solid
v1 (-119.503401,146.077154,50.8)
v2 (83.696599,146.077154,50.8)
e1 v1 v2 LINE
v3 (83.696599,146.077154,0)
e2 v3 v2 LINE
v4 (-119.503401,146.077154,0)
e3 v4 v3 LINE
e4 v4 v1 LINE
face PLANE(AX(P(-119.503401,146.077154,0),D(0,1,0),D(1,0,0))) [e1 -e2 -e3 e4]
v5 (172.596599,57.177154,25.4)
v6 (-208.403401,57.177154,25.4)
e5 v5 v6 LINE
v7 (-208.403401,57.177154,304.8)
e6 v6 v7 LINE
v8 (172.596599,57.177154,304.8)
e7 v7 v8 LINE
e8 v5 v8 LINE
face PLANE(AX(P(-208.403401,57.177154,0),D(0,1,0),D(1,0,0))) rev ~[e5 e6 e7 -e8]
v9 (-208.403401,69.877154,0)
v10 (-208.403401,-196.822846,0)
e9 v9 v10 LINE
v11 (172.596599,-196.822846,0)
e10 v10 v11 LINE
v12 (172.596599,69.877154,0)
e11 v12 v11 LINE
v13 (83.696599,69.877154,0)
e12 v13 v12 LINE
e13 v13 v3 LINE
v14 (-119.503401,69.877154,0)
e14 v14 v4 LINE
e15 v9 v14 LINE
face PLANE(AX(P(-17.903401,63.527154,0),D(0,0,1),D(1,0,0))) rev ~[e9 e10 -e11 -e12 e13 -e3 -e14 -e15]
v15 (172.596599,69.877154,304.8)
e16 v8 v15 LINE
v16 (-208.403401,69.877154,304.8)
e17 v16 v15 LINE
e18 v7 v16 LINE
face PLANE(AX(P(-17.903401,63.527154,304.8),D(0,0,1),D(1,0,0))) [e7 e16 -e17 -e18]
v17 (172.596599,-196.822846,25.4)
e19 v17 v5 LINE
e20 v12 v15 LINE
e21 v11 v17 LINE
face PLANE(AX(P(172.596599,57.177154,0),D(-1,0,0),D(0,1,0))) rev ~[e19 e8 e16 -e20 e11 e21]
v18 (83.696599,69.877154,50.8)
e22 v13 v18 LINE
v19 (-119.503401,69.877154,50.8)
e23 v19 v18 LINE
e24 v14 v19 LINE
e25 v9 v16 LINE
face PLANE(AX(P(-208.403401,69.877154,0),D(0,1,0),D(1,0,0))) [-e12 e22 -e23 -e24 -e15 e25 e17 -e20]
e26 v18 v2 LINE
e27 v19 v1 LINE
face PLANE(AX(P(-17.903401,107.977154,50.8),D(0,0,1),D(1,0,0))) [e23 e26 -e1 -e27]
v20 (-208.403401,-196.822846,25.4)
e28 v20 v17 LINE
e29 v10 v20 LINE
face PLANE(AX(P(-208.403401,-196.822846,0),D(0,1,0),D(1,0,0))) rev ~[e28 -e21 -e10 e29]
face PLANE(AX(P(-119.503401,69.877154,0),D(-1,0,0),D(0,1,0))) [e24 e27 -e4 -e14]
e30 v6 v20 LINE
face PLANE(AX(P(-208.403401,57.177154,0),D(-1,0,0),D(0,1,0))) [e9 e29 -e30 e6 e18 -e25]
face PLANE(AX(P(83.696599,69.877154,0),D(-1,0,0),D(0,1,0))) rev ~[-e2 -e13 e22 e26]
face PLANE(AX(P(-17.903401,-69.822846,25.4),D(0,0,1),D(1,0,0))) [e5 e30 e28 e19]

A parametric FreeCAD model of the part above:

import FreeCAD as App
import Part
import Sketcher

V = App.Vector
Q = App.Units.Quantity


def add_polygon(sketch, points):
    """Adds a closed chain of lines whose ends are joined by coincident constraints."""
    first, n = sketch.GeometryCount, len(points)
    for a, b in zip(points, points[1:] + points[:1]):
        sketch.addGeometry(Part.LineSegment(App.Vector(*a, 0), App.Vector(*b, 0)), False)
    for i in range(n):
        sketch.addConstraint(Sketcher.Constraint("Coincident", first + i, 2, first + (i + 1) % n, 1))

doc = App.newDocument("Part")
body = doc.addObject("PartDesign::Body", "Body")

sketch1 = body.newObject("Sketcher::SketchObject", "Sketch")
sketch1.AttachmentSupport = (doc.getObject("XY_Plane"), [""])
sketch1.MapMode = "FlatFace"
add_polygon(sketch1, [(-208.403401, 57.177154), (-208.403401, -196.822846), (172.596599, -196.822846), (172.596599, 57.177154)])
sketch1.addConstraint(Sketcher.Constraint("Vertical", 0))
sketch1.addConstraint(Sketcher.Constraint("Horizontal", 1))
sketch1.addConstraint(Sketcher.Constraint("Vertical", 2))
sketch1.addConstraint(Sketcher.Constraint("Horizontal", 3))
sketch1.addConstraint(Sketcher.Constraint("DistanceX", 1, 1, 1, 2, Q("15 in")))
sketch1.addConstraint(Sketcher.Constraint("DistanceY", 0, 2, 0, 1, Q("10 in")))
sketch1.addConstraint(Sketcher.Constraint("DistanceX", 0, 2, -1, 1, 208.403401))
sketch1.addConstraint(Sketcher.Constraint("DistanceY", 0, 2, -1, 1, 196.822846))
pad1 = body.newObject("PartDesign::Pad", "Pad")
pad1.Profile = sketch1
pad1.Length = Q("1 in")

sketch2 = body.newObject("Sketcher::SketchObject", "Sketch001")
sketch2.AttachmentSupport = (doc.getObject("XY_Plane"), [""])
sketch2.MapMode = "FlatFace"
add_polygon(sketch2, [(-208.403401, 69.877154), (-208.403401, 57.177154), (172.596599, 57.177154), (172.596599, 69.877154)])
sketch2.addConstraint(Sketcher.Constraint("Vertical", 0))
sketch2.addConstraint(Sketcher.Constraint("Horizontal", 1))
sketch2.addConstraint(Sketcher.Constraint("Vertical", 2))
sketch2.addConstraint(Sketcher.Constraint("Horizontal", 3))
sketch2.addConstraint(Sketcher.Constraint("DistanceX", 1, 1, 1, 2, Q("15 in")))
sketch2.addConstraint(Sketcher.Constraint("DistanceY", 0, 2, 0, 1, Q("0.5 in")))
sketch2.addConstraint(Sketcher.Constraint("DistanceX", 0, 2, -1, 1, 208.403401))
sketch2.addConstraint(Sketcher.Constraint("DistanceY", -1, 1, 0, 2, 57.177154))
pad2 = body.newObject("PartDesign::Pad", "Pad001")
pad2.Profile = sketch2
pad2.Length = Q("12 in")

sketch3 = body.newObject("Sketcher::SketchObject", "Sketch002")
sketch3.AttachmentSupport = (doc.getObject("XY_Plane"), [""])
sketch3.MapMode = "FlatFace"
add_polygon(sketch3, [(-119.503401, 146.077154), (-119.503401, 69.877154), (83.696599, 69.877154), (83.696599, 146.077154)])
sketch3.addConstraint(Sketcher.Constraint("Vertical", 0))
sketch3.addConstraint(Sketcher.Constraint("Horizontal", 1))
sketch3.addConstraint(Sketcher.Constraint("Vertical", 2))
sketch3.addConstraint(Sketcher.Constraint("Horizontal", 3))
sketch3.addConstraint(Sketcher.Constraint("DistanceX", 1, 1, 1, 2, Q("8 in")))
sketch3.addConstraint(Sketcher.Constraint("DistanceY", 0, 2, 0, 1, Q("3 in")))
sketch3.addConstraint(Sketcher.Constraint("DistanceX", 0, 2, -1, 1, 119.503401))
sketch3.addConstraint(Sketcher.Constraint("DistanceY", -1, 1, 0, 2, 69.877154))
pad3 = body.newObject("PartDesign::Pad", "Pad002")
pad3.Profile = sketch3
pad3.Length = Q("2 in")

doc.recompute()
